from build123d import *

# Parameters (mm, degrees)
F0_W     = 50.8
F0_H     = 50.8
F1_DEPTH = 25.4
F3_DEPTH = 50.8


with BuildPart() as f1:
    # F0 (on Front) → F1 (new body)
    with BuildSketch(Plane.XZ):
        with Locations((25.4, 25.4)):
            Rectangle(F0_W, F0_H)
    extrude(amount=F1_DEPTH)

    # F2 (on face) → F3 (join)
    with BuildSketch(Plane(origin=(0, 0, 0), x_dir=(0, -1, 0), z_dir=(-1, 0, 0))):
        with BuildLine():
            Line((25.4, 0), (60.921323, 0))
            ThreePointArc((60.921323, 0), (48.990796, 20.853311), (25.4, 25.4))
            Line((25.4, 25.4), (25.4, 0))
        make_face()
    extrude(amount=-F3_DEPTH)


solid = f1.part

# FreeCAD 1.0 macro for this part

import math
import FreeCAD as App
import Part
import Sketcher
Q = App.Units.Quantity

doc = App.newDocument("Part")
params = doc.addObject("Spreadsheet::Sheet", "Params")
for row, (alias, value) in enumerate([
    ("sketch1_width", "2 in"),
    ("pad1_length", "1 in"),
    ("sketch2_height", "1 in"),
    ("pad2_length", "2 in"),
], start=1):
    params.set(f"A{row}", alias)
    params.set(f"B{row}", "=" + value)
    params.setAlias(f"B{row}", alias)

body = doc.addObject("PartDesign::Body", "Body")

# Sketch on XZ plane
sketch1 = doc.addObject("Sketcher::SketchObject", "Sketch")
body.addObject(sketch1)
sketch1.AttachmentSupport = (doc.XZ_Plane, [""])
sketch1.MapMode = "FlatFace"
sketch1.addGeometry([
    Part.LineSegment(App.Vector(0, 51, 0), App.Vector(0, 0, 0)),
    Part.LineSegment(App.Vector(0, 0, 0), App.Vector(51, 0, 0)),
    Part.LineSegment(App.Vector(51, 0, 0), App.Vector(51, 51, 0)),
    Part.LineSegment(App.Vector(51, 51, 0), App.Vector(0, 51, 0)),
], False)
sketch1.addConstraint([
    Sketcher.Constraint("Coincident", 0, 2, 1, 1),
    Sketcher.Constraint("Coincident", 1, 2, 2, 1),
    Sketcher.Constraint("Coincident", 2, 2, 3, 1),
    Sketcher.Constraint("Coincident", 3, 2, 0, 1),
    Sketcher.Constraint("Vertical", 0),
    Sketcher.Constraint("Horizontal", 1),
    Sketcher.Constraint("Vertical", 2),
    Sketcher.Constraint("Horizontal", 3),
    Sketcher.Constraint("Coincident", 0, 2, -1, 1),
    Sketcher.Constraint("Equal", 3, 0),
    Sketcher.Constraint("DistanceX", 1, 1, 1, 2, Q("2 in")),
])
sketch1.setExpression("Constraints[10]", "Params.sketch1_width")
pad1 = doc.addObject("PartDesign::Pad", "Pad")
body.addObject(pad1)
pad1.Profile = sketch1
pad1.setExpression("Length", "Params.pad1_length")

# Sketch on YZ plane
sketch2 = doc.addObject("Sketcher::SketchObject", "Sketch001")
body.addObject(sketch2)
sketch2.AttachmentSupport = (doc.YZ_Plane, [""])
sketch2.MapMode = "FlatFace"
sketch2.addGeometry([
    Part.LineSegment(App.Vector(-25, 0, 0), App.Vector(-61, 0, 0)),
    Part.ArcOfCircle(Part.Circle(App.Vector(-32, -3, 0), App.Vector(0, 0, 1), 29), math.radians(76), math.radians(175)),
    Part.LineSegment(App.Vector(-25, 25, 0), App.Vector(-25, 0, 0)),
], False)
sketch2.addConstraint([
    Sketcher.Constraint("Coincident", 0, 2, 1, 2),
    Sketcher.Constraint("Coincident", 1, 1, 2, 1),
    Sketcher.Constraint("Coincident", 2, 2, 0, 1),
    Sketcher.Constraint("Horizontal", 0),
    Sketcher.Constraint("Vertical", 2),
    Sketcher.Constraint("PointOnObject", 0, 2, -1),
    Sketcher.Constraint("DistanceY", 2, 2, 2, 1, Q("1 in")),
    Sketcher.Constraint("DistanceX", 1, 1, -1, 1, Q("1 in")),
    Sketcher.Constraint("Radius", 1, Q("28.792757 mm")),
    Sketcher.Constraint("DistanceY", 1, 3, -1, 1, Q("2.567701 mm")),
])
sketch2.setExpression("Constraints[6]", "Params.sketch2_height")
pad2 = doc.addObject("PartDesign::Pad", "Pad001")
body.addObject(pad2)
pad2.Profile = sketch2
pad2.setExpression("Length", "Params.pad2_length")

doc.recompute()
